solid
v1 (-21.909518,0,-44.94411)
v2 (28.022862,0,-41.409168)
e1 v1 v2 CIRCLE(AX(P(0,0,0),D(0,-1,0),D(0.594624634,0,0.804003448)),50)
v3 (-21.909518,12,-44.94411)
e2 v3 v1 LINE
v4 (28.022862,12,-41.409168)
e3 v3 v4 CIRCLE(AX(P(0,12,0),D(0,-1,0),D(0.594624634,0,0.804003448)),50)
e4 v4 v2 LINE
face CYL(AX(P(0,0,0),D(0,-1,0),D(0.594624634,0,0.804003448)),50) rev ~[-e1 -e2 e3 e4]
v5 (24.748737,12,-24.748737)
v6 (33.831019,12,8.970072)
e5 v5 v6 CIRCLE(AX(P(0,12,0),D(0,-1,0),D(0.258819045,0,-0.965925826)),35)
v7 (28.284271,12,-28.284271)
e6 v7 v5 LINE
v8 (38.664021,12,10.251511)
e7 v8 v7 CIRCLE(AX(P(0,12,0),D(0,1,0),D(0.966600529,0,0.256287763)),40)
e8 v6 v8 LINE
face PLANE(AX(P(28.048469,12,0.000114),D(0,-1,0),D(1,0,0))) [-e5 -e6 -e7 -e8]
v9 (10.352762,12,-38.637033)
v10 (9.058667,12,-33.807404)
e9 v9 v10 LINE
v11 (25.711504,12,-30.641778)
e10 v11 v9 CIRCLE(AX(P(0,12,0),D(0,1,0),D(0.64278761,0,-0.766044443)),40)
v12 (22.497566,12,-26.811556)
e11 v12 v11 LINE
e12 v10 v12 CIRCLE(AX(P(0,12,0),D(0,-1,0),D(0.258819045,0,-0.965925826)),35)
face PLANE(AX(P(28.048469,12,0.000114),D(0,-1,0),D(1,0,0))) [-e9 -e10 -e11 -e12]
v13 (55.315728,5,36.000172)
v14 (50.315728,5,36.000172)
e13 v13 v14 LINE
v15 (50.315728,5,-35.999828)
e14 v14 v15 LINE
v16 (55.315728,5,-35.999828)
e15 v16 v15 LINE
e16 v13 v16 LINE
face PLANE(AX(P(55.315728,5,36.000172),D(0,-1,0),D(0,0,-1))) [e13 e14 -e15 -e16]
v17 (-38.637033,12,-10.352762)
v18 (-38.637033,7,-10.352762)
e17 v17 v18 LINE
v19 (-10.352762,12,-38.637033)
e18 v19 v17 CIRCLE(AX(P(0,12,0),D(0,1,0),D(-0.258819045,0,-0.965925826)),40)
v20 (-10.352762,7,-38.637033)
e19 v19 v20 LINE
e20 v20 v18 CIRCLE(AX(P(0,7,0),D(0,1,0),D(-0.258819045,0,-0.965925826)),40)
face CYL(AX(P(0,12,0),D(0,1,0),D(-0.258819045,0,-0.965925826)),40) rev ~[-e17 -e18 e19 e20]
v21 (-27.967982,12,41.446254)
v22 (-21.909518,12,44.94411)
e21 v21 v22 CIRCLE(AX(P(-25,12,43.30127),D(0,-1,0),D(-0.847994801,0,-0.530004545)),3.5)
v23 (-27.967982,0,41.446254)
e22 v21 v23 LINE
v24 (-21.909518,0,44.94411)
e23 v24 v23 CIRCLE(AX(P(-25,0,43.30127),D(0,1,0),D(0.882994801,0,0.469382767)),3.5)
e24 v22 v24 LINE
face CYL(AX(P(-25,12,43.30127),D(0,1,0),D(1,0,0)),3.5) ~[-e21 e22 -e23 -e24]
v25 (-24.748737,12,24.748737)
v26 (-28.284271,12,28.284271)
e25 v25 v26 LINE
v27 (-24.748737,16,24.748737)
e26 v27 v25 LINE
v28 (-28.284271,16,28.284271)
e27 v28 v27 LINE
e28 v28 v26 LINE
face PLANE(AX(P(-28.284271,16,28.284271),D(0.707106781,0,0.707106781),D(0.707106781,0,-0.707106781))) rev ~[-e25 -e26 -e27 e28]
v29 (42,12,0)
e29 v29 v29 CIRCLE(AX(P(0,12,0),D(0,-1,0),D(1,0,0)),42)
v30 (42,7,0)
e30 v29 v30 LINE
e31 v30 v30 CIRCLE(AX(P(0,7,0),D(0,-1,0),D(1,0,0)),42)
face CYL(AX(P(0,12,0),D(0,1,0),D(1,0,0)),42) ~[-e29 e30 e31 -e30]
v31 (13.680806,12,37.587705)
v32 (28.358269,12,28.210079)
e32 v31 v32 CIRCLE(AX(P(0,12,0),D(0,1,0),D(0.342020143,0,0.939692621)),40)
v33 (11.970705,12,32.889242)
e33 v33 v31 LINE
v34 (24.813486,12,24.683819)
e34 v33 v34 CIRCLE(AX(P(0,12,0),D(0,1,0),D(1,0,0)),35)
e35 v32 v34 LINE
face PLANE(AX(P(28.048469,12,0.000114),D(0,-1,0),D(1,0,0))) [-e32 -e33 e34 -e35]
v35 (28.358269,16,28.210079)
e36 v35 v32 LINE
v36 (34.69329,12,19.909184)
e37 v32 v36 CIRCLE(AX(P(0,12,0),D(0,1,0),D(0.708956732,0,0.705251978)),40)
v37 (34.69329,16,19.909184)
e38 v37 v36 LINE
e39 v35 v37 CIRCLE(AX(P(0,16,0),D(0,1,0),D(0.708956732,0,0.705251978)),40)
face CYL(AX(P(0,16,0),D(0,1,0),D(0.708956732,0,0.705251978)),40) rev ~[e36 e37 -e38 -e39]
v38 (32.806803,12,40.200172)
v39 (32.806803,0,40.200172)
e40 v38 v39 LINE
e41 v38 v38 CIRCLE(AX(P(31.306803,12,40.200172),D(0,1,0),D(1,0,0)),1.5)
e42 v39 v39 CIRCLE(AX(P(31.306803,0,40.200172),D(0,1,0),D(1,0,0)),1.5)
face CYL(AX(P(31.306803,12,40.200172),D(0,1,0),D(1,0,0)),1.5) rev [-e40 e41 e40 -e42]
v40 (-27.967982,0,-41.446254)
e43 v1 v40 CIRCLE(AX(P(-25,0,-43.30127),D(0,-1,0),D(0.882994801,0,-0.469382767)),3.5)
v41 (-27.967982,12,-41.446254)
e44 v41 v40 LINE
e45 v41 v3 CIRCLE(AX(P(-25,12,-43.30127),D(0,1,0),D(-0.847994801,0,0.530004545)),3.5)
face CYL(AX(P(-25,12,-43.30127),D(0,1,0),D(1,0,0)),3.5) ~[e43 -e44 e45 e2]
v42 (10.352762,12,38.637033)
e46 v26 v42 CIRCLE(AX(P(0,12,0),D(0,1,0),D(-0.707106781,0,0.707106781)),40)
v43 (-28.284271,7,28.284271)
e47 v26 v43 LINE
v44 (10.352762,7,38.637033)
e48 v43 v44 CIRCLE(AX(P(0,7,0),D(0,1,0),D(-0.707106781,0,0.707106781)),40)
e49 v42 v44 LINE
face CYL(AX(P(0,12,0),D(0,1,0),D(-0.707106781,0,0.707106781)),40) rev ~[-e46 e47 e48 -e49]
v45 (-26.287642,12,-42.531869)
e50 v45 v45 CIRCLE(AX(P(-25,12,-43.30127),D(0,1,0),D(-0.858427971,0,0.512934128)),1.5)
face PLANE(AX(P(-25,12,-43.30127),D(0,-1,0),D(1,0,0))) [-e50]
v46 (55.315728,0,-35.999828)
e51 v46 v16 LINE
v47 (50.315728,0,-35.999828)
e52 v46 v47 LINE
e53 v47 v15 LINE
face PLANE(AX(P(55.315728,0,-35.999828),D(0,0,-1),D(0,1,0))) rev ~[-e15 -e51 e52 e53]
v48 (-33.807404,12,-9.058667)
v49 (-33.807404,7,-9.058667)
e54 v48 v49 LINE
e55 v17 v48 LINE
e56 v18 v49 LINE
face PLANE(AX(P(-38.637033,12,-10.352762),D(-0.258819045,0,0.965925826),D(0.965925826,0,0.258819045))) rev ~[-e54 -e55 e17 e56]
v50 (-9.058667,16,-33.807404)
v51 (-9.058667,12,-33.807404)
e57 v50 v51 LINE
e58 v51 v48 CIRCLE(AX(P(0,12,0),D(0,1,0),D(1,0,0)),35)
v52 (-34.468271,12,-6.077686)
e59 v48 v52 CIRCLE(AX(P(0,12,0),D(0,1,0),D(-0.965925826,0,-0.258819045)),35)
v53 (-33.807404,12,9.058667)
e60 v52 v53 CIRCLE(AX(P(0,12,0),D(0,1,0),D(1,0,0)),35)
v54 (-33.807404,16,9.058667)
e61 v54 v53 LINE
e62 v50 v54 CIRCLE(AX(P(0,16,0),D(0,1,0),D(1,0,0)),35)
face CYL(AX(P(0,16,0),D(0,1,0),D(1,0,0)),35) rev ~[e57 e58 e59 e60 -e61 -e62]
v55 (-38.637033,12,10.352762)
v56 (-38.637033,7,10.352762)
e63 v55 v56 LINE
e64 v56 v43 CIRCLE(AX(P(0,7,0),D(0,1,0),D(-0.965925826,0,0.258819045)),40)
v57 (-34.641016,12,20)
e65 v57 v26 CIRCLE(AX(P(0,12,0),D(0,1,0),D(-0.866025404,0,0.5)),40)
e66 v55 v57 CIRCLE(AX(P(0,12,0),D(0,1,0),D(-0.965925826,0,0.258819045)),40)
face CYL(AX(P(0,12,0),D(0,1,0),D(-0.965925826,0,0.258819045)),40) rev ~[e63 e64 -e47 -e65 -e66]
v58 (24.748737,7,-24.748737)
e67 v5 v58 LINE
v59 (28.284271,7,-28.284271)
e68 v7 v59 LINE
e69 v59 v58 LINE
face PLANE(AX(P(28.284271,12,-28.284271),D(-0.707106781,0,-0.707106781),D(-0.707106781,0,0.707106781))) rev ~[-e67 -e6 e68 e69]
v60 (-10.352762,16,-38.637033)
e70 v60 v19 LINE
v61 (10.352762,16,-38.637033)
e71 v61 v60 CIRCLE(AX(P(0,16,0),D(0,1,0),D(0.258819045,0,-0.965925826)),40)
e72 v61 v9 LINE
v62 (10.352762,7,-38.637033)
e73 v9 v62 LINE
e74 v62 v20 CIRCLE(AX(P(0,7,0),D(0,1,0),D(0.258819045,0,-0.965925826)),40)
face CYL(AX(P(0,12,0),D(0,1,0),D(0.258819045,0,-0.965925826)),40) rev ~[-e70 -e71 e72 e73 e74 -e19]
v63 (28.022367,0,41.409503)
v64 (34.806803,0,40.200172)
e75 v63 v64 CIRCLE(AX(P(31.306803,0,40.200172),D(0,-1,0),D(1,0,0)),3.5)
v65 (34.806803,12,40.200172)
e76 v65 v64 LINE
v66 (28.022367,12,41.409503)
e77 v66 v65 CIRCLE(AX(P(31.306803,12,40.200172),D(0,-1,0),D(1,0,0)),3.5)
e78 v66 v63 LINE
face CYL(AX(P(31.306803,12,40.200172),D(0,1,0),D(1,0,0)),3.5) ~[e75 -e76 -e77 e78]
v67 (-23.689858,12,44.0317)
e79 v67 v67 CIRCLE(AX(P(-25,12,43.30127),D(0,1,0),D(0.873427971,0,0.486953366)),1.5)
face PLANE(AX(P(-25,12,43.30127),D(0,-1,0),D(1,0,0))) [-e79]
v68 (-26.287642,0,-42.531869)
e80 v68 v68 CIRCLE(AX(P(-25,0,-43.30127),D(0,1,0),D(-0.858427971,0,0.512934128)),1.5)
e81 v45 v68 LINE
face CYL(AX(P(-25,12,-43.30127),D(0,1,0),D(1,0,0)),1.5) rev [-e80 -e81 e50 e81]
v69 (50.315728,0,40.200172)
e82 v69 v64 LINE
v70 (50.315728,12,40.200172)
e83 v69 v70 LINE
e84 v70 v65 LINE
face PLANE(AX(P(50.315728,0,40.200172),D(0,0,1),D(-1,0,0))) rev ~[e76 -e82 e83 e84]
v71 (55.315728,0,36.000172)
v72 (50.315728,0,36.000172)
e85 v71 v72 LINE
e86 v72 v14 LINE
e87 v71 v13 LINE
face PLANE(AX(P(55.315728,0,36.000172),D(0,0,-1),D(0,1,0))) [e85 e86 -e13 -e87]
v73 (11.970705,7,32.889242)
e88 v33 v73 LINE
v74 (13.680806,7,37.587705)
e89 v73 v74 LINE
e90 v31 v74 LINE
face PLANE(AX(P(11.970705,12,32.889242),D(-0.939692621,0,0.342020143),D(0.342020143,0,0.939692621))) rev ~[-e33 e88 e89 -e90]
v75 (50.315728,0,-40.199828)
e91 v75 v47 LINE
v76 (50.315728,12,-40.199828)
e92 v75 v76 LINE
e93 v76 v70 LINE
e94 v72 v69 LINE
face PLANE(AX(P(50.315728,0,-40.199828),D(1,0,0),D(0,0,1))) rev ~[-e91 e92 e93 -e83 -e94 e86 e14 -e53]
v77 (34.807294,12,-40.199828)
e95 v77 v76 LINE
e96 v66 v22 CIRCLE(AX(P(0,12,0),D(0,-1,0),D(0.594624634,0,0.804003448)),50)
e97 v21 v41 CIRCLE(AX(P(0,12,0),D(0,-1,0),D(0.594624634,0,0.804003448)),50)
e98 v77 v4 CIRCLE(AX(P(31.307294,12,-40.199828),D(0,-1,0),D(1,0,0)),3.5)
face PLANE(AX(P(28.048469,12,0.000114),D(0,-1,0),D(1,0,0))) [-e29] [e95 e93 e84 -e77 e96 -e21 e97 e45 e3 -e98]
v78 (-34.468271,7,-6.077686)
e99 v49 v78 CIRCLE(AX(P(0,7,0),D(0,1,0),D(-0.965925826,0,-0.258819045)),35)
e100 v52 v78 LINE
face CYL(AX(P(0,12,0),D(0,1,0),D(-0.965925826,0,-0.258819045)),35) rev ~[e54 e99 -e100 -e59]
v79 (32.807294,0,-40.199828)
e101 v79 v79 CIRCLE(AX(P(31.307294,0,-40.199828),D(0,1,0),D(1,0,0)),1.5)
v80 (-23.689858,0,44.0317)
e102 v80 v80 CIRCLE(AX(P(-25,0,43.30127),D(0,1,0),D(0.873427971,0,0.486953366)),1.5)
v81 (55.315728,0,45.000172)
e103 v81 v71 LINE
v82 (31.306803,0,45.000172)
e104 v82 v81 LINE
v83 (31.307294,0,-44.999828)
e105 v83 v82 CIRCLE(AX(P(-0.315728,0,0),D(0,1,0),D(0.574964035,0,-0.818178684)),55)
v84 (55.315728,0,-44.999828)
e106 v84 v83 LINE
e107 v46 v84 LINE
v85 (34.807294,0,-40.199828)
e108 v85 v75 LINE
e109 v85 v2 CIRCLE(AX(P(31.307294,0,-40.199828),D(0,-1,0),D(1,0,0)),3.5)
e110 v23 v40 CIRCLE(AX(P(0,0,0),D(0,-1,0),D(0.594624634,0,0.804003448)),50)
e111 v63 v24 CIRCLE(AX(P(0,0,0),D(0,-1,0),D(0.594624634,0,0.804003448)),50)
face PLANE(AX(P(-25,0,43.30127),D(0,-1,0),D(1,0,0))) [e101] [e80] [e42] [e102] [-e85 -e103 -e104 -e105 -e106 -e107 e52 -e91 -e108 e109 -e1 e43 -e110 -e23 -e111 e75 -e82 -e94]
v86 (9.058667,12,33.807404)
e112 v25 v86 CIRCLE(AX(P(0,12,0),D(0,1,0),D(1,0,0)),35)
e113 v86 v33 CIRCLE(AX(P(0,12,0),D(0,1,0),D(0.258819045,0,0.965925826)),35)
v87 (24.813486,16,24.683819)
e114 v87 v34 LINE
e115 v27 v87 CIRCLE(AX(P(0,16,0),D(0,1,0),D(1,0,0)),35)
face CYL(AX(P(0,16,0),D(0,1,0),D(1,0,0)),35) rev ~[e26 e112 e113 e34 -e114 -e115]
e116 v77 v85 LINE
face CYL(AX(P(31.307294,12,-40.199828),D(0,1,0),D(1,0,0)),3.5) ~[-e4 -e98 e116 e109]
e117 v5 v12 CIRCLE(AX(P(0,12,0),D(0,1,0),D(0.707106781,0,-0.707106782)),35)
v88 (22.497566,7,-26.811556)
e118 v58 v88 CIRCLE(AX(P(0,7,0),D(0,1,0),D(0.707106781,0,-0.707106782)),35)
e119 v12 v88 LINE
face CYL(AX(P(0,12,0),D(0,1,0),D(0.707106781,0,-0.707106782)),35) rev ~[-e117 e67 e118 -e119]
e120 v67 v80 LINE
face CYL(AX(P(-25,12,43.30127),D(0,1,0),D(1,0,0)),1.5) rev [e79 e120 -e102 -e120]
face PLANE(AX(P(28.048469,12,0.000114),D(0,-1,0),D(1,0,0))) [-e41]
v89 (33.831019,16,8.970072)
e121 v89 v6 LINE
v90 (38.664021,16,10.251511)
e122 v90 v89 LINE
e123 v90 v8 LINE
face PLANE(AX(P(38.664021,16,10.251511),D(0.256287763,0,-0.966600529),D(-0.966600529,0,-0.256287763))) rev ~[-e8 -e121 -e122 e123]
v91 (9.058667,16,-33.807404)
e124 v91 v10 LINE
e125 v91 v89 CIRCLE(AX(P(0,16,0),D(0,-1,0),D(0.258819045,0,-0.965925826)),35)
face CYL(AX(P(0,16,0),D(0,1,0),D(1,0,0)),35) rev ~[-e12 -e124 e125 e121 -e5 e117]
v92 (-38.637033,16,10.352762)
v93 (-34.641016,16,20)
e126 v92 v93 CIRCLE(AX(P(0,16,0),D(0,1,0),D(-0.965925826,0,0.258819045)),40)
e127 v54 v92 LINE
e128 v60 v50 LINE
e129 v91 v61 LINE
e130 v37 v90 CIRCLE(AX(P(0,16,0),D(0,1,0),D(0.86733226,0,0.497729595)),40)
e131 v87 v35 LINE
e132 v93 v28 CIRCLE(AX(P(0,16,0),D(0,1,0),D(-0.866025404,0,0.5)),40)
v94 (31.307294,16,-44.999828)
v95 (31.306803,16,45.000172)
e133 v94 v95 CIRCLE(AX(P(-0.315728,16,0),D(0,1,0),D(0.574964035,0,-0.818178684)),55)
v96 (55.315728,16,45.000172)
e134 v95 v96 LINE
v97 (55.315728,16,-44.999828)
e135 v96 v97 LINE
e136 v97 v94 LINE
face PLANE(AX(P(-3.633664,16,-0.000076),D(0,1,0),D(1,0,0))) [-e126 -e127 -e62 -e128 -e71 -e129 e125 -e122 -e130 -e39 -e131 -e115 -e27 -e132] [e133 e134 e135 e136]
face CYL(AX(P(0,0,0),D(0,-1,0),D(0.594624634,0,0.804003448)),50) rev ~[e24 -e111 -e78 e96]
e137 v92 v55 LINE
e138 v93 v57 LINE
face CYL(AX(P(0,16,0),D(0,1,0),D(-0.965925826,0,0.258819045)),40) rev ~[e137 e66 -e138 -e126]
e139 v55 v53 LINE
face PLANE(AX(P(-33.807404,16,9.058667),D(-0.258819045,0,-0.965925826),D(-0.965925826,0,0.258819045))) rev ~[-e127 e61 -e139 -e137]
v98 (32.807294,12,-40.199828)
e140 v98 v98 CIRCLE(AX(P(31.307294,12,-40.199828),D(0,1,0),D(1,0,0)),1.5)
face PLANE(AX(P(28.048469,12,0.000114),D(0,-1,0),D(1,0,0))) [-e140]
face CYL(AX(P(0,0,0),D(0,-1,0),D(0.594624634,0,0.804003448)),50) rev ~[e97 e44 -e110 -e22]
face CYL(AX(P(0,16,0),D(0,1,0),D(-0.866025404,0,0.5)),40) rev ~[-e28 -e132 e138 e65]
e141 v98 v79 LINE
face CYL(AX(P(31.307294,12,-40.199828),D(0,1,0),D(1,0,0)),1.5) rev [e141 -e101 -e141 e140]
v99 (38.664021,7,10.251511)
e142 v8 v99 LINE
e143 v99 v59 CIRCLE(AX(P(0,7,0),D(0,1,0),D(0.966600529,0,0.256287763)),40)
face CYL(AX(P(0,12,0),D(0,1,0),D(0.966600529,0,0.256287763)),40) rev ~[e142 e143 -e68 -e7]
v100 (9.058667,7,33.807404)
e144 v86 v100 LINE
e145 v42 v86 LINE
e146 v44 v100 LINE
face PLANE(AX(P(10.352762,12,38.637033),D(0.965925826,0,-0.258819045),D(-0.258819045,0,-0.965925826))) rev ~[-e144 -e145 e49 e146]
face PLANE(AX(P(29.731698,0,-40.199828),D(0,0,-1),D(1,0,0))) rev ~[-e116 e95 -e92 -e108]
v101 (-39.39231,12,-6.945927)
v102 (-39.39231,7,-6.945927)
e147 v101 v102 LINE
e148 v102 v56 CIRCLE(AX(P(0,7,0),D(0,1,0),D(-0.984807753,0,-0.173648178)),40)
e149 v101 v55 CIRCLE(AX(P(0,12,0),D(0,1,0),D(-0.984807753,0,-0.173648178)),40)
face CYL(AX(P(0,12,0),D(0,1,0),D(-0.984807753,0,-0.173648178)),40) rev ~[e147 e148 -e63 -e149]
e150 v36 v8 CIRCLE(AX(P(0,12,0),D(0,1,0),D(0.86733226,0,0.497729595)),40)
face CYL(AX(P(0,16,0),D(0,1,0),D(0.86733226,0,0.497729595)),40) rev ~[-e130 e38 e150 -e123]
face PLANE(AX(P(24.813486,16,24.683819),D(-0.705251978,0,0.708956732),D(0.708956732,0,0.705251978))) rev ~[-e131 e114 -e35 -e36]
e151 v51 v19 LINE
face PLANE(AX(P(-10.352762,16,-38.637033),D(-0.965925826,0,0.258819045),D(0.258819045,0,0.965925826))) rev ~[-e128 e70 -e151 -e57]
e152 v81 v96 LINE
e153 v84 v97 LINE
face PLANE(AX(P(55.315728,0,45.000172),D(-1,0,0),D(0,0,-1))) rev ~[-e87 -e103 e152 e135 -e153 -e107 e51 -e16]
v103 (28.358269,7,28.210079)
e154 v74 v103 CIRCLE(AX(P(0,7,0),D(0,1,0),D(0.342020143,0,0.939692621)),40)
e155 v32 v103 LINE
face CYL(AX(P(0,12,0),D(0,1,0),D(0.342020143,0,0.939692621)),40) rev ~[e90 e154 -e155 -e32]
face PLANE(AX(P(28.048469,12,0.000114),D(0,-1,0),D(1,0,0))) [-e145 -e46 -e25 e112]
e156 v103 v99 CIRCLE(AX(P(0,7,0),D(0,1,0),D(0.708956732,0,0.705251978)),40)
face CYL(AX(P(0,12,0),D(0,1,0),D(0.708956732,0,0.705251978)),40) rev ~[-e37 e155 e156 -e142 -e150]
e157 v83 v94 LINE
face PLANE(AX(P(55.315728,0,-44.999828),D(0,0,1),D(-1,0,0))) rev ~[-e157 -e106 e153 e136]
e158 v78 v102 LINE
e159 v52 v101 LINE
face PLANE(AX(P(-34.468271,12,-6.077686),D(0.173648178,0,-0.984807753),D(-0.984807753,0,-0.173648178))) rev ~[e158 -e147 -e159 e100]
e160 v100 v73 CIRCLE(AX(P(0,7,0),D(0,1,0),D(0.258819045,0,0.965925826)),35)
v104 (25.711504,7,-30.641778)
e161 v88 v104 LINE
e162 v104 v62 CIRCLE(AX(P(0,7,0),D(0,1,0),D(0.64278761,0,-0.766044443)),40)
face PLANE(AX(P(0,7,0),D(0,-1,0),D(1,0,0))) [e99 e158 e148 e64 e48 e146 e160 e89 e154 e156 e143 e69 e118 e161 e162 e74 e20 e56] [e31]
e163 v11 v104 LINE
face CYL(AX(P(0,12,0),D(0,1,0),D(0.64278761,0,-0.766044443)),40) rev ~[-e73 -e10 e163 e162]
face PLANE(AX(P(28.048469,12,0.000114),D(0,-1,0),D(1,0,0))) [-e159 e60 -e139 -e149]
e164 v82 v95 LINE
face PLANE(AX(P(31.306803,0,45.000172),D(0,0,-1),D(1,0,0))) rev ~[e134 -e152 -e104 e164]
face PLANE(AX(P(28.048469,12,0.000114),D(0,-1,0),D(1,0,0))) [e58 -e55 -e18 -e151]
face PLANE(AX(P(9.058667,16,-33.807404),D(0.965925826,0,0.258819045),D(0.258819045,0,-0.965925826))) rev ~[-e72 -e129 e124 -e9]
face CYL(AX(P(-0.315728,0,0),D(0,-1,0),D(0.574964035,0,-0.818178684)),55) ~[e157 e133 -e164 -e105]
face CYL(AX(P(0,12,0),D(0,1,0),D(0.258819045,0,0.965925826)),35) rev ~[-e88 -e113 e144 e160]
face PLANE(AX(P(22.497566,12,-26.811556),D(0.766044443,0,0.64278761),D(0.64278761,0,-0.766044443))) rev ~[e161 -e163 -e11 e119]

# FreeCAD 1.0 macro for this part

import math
import FreeCAD as App
import Part
import Sketcher

V = App.Vector
Q = App.Units.Quantity

doc = App.newDocument("Part")
params = doc.addObject("Spreadsheet::Sheet", "Params")
for row, (alias, value) in enumerate([
    ("sketch1_radius", "55 mm"),
    ("sketch1_height", "90 mm"),
    ("pad1_length", "16 mm"),
    ("sketch2_radius", "50 mm"),
    ("sketch2_height", "80.4 mm"),
    ("pocket1_length", "12 mm"),
    ("sketch3_width", "5 mm"),
    ("sketch3_height", "72 mm"),
    ("pocket2_length", "16 mm"),
    ("sketch4_diameter", "70 mm"),
    ("pocket3_length", "16 mm"),
    ("sketch5_radius", "35 mm"),
    ("sketch5_radius2", "40 mm"),
    ("pocket4_length", "10 mm"),
    ("sketch6_diameter", "84 mm"),
    ("sketch6_radius", "40 mm"),
    ("sketch6_radius2", "35 mm"),
    ("pad2_length", "5 mm"),
    ("sketch7_diameter", "7 mm"),
    ("sketch7_diameter2", "3 mm"),
    ("pad3_length", "12 mm"),
    ("sketch8_diameter", "3 mm"),
    ("pocket5_length", "12 mm"),
], start=1):
    params.set(f"A{row}", alias)
    params.set(f"B{row}", "=" + value)
    params.setAlias(f"B{row}", alias)

body = doc.addObject("PartDesign::Body", "Body")

# Sketch on XZ plane
sketch1 = body.newObject("Sketcher::SketchObject", "Sketch")
sketch1.AttachmentSupport = (doc.getObject("XZ_Plane"), [""])
sketch1.MapMode = "FlatFace"
sketch1.addGeometry([
    Part.ArcOfCircle(Part.Circle(V(0, 0, 0), V(0, 0, 1), 55), math.radians(55), math.radians(305)),
    Part.LineSegment(V(31, 45, 0), V(55, 45, 0)),
    Part.LineSegment(V(55, 45, 0), V(55, -45, 0)),
    Part.LineSegment(V(55, -45, 0), V(31, -45, 0)),
], False)
sketch1.addConstraint([
    Sketcher.Constraint("Coincident", 0, 1, 1, 1),
    Sketcher.Constraint("Coincident", 1, 2, 2, 1),
    Sketcher.Constraint("Coincident", 2, 2, 3, 1),
    Sketcher.Constraint("Coincident", 3, 2, 0, 2),
    Sketcher.Constraint("Horizontal", 1),
    Sketcher.Constraint("Vertical", 2),
    Sketcher.Constraint("Horizontal", 3),
    Sketcher.Constraint("PointOnObject", 0, 3, -1),
    Sketcher.Constraint("Radius", 0, Q("55 mm")),
    Sketcher.Constraint("DistanceY", 2, 2, 2, 1, Q("90 mm")),
    Sketcher.Constraint("DistanceX", 1, 1, 1, 2, Q("24.008925 mm")),
    Sketcher.Constraint("DistanceX", 3, 2, 3, 1, Q("24.008434 mm")),
    Sketcher.Constraint("DistanceX", 0, 3, -1, 1, Q("0.315728 mm")),
])
sketch1.setExpression("Constraints[8]", "Params.sketch1_radius")
sketch1.setExpression("Constraints[9]", "Params.sketch1_height")
pad1 = body.newObject("PartDesign::Pad", "Pad")
pad1.Profile = sketch1
pad1.setExpression("Length", "Params.pad1_length")
pad1.Reversed = True

# Sketch on XZ plane
sketch2 = body.newObject("Sketcher::SketchObject", "Sketch001")
sketch2.AttachmentSupport = (doc.getObject("XZ_Plane"), [""])
sketch2.MapMode = "FlatFace"
sketch2.addGeometry([
    Part.ArcOfCircle(Part.Circle(V(0, 0, 0), V(0, 0, 1), 50), math.radians(54), math.radians(306)),
    Part.LineSegment(V(30, -40, 0), V(50, -40, 0)),
    Part.LineSegment(V(50, -40, 0), V(50, 40, 0)),
    Part.LineSegment(V(50, 40, 0), V(30, 40, 0)),
], False)
sketch2.addConstraint([
    Sketcher.Constraint("Coincident", 0, 2, 1, 1),
    Sketcher.Constraint("Coincident", 1, 2, 2, 1),
    Sketcher.Constraint("Coincident", 2, 2, 3, 1),
    Sketcher.Constraint("Coincident", 3, 2, 0, 1),
    Sketcher.Constraint("Horizontal", 1),
    Sketcher.Constraint("Vertical", 2),
    Sketcher.Constraint("Horizontal", 3),
    Sketcher.Constraint("Coincident", 0, 3, -1, 1),
    Sketcher.Constraint("Radius", 0, Q("50 mm")),
    Sketcher.Constraint("DistanceY", 2, 1, 2, 2, Q("80.4 mm")),
    Sketcher.Constraint("DistanceX", 1, 1, 1, 2, Q("20.58403 mm")),
    Sketcher.Constraint("DistanceX", 3, 2, 3, 1, Q("20.584496 mm")),
])
sketch2.setExpression("Constraints[8]", "Params.sketch2_radius")
sketch2.setExpression("Constraints[9]", "Params.sketch2_height")
pocket1 = body.newObject("PartDesign::Pocket", "Pocket")
pocket1.Profile = sketch2
pocket1.setExpression("Length", "Params.pocket1_length")

# Sketch on YZ plane
sketch3 = body.newObject("Sketcher::SketchObject", "Sketch002")
sketch3.AttachmentSupport = (doc.getObject("YZ_Plane"), [""])
sketch3.MapMode = "FlatFace"
sketch3.AttachmentOffset = App.Placement(V(0, 0, 55.315728), App.Rotation())
sketch3.addGeometry([
    Part.LineSegment(V(5, 36, 0), V(0, 36, 0)),
    Part.LineSegment(V(0, 36, 0), V(0, -36, 0)),
    Part.LineSegment(V(0, -36, 0), V(5, -36, 0)),
    Part.LineSegment(V(5, -36, 0), V(5, 36, 0)),
], False)
sketch3.addConstraint([
    Sketcher.Constraint("Coincident", 0, 2, 1, 1),
    Sketcher.Constraint("Coincident", 1, 2, 2, 1),
    Sketcher.Constraint("Coincident", 2, 2, 3, 1),
    Sketcher.Constraint("Coincident", 3, 2, 0, 1),
    Sketcher.Constraint("Horizontal", 0),
    Sketcher.Constraint("Vertical", 1),
    Sketcher.Constraint("Horizontal", 2),
    Sketcher.Constraint("Vertical", 3),
    Sketcher.Constraint("PointOnObject", 0, 2, -2),
    Sketcher.Constraint("DistanceX", 0, 2, 0, 1, Q("5 mm")),
    Sketcher.Constraint("DistanceY", 1, 2, 1, 1, Q("72 mm")),
    Sketcher.Constraint("DistanceY", -1, 1, 0, 2, Q("36.000172 mm")),
])
sketch3.setExpression("Constraints[9]", "Params.sketch3_width")
sketch3.setExpression("Constraints[10]", "Params.sketch3_height")
pocket2 = body.newObject("PartDesign::Pocket", "Pocket001")
pocket2.Profile = sketch3
pocket2.setExpression("Length", "Params.pocket2_length")

# Sketch on XZ plane
sketch4 = body.newObject("Sketcher::SketchObject", "Sketch003")
sketch4.AttachmentSupport = (doc.getObject("XZ_Plane"), [""])
sketch4.MapMode = "FlatFace"
sketch4.AttachmentOffset = App.Placement(V(0, 0, -16), App.Rotation())
sketch4.addGeometry(Part.Circle(V(0, 0, 0), V(0, 0, 1), 35), False)
sketch4.addConstraint([
    Sketcher.Constraint("Coincident", 0, 3, -1, 1),
    Sketcher.Constraint("Diameter", 0, Q("70 mm")),
])
sketch4.setExpression("Constraints[1]", "Params.sketch4_diameter")
pocket3 = body.newObject("PartDesign::Pocket", "Pocket002")
pocket3.Profile = sketch4
pocket3.setExpression("Length", "Params.pocket3_length")
pocket3.Reversed = True

# Sketch on XZ plane
sketch5 = body.newObject("Sketcher::SketchObject", "Sketch004")
sketch5.AttachmentSupport = (doc.getObject("XZ_Plane"), [""])
sketch5.MapMode = "FlatFace"
sketch5.AttachmentOffset = App.Placement(V(0, 0, -16), App.Rotation())
sketch5.addGeometry([
    Part.LineSegment(V(-28.3, 28.3, 0), V(-24.7, 24.7, 0)),  # 0
    Part.ArcOfCircle(Part.Circle(V(0, 0, 0), V(0, 0, 1), 35), math.radians(135), math.radians(150)),  # 1
    Part.ArcOfCircle(Part.Circle(V(0, 0, 0), V(0, 0, 1), 35), math.radians(150), math.radians(165)),  # 2
    Part.LineSegment(V(-33.8, 9.1, 0), V(-38.6, 10.4, 0)),  # 3
    Part.ArcOfCircle(Part.Circle(V(0, 0, 0), V(0, 0, 1), 40), math.radians(150), math.radians(165)),  # 4
    Part.ArcOfCircle(Part.Circle(V(0, 0, 0), V(0, 0, 1), 40), math.radians(135), math.radians(150)),  # 5
    Part.LineSegment(V(-10.4, -38.6, 0), V(-9.1, -33.8, 0)),  # 6
    Part.ArcOfCircle(Part.Circle(V(0, 0, 0), V(0, 0, 1), 35), math.radians(-105), math.radians(-75)),  # 7
    Part.LineSegment(V(9.1, -33.8, 0), V(10.4, -38.6, 0)),  # 8
    Part.ArcOfCircle(Part.Circle(V(0, 0, 0), V(0, 0, 1), 40), math.radians(-105), math.radians(-75)),  # 9
    Part.ArcOfCircle(Part.Circle(V(0, 0, 0), V(0, 0, 1), 35), math.radians(14.85), math.radians(29.85)),  # 10
    Part.ArcOfCircle(Part.Circle(V(0, 0, 0), V(0, 0, 1), 35), math.radians(29.85), math.radians(44.85)),  # 11
    Part.LineSegment(V(24.8, 24.7, 0), V(28.4, 28.2, 0)),  # 12
    Part.ArcOfCircle(Part.Circle(V(0, 0, 0), V(0, 0, 1), 40), math.radians(29.85), math.radians(44.85)),  # 13
    Part.ArcOfCircle(Part.Circle(V(0, 0, 0), V(0, 0, 1), 40), math.radians(14.85), math.radians(29.85)),  # 14
    Part.LineSegment(V(38.7, 10.3, 0), V(33.8, 9, 0)),  # 15
], False)
sketch5.addConstraint([
    Sketcher.Constraint("Coincident", 0, 2, 1, 1),
    Sketcher.Constraint("Tangent", 1, 2, 2, 1),
    Sketcher.Constraint("Coincident", 2, 2, 3, 1),
    Sketcher.Constraint("Coincident", 3, 2, 4, 2),
    Sketcher.Constraint("Tangent", 4, 1, 5, 2),
    Sketcher.Constraint("Coincident", 5, 1, 0, 1),
    Sketcher.Constraint("Coincident", 6, 2, 7, 1),
    Sketcher.Constraint("Coincident", 7, 2, 8, 1),
    Sketcher.Constraint("Coincident", 8, 2, 9, 2),
    Sketcher.Constraint("Coincident", 9, 1, 6, 1),
    Sketcher.Constraint("Tangent", 10, 2, 11, 1),
    Sketcher.Constraint("Coincident", 11, 2, 12, 1),
    Sketcher.Constraint("Coincident", 12, 2, 13, 2),
    Sketcher.Constraint("Tangent", 13, 1, 14, 2),
    Sketcher.Constraint("Coincident", 14, 1, 15, 1),
    Sketcher.Constraint("Coincident", 15, 2, 10, 1),
    Sketcher.Constraint("Coincident", 1, 3, -1, 1),
    Sketcher.Constraint("Coincident", 4, 3, -1, 1),
    Sketcher.Constraint("Coincident", 7, 3, -1, 1),
    Sketcher.Constraint("Coincident", 9, 3, -1, 1),
    Sketcher.Constraint("Coincident", 10, 3, -1, 1),
    Sketcher.Constraint("Coincident", 13, 3, -1, 1),
    Sketcher.Constraint("Equal", 1, 2),
    Sketcher.Constraint("Equal", 4, 5),
    Sketcher.Constraint("Equal", 2, 7),
    Sketcher.Constraint("Equal", 5, 9),
    Sketcher.Constraint("Equal", 7, 10),
    Sketcher.Constraint("Equal", 10, 11),
    Sketcher.Constraint("Equal", 9, 13),
    Sketcher.Constraint("Equal", 13, 14),
    Sketcher.Constraint("Perpendicular", 3, 6),
    Sketcher.Constraint("Horizontal", 6, 2, 7, 2),
    Sketcher.Constraint("Horizontal", 8, 2, 9, 1),
    Sketcher.Constraint("Radius", 1, Q("35 mm")),
    Sketcher.Constraint("Radius", 4, Q("40 mm")),
    Sketcher.Constraint("Angle", 0, Q("-45 deg")),
    Sketcher.Constraint("Angle", 3, Q("165 deg")),
    Sketcher.Constraint("DistanceY", -1, 1, 4, 1, Q("20 mm")),
    Sketcher.Constraint("DistanceY", -1, 1, 1, 2, Q("17.5 mm")),
    Sketcher.Constraint("DistanceY", -1, 1, 3, 2, Q("10.352762 mm")),
    Sketcher.Constraint("DistanceX", 5, 1, -1, 1, Q("28.284271 mm")),
    Sketcher.Constraint("DistanceX", -1, 1, 8, 2, Q("10.352762 mm")),
    Sketcher.Constraint("DistanceX", -1, 1, 10, 2, Q("30.356629 mm")),
    Sketcher.Constraint("DistanceY", -1, 1, 11, 2, Q("24.683819 mm")),
    Sketcher.Constraint("DistanceX", -1, 1, 12, 2, Q("28.358269 mm")),
    Sketcher.Constraint("DistanceX", -1, 1, 13, 1, Q("34.69329 mm")),
    Sketcher.Constraint("DistanceX", -1, 1, 14, 1, Q("38.664021 mm")),
    Sketcher.Constraint("DistanceX", -1, 1, 15, 2, Q("33.831019 mm")),
])
sketch5.setExpression("Constraints[33]", "Params.sketch5_radius")
sketch5.setExpression("Constraints[34]", "Params.sketch5_radius2")
pocket4 = body.newObject("PartDesign::Pocket", "Pocket003")
pocket4.Profile = sketch5
pocket4.setExpression("Length", "Params.pocket4_length")
pocket4.Reversed = True

# Sketch on XZ plane
sketch6 = body.newObject("Sketcher::SketchObject", "Sketch005")
sketch6.AttachmentSupport = (doc.getObject("XZ_Plane"), [""])
sketch6.MapMode = "FlatFace"
sketch6.AttachmentOffset = App.Placement(V(0, 0, -12), App.Rotation())
sketch6.addGeometry([
    Part.Circle(V(0, 0, 0), V(0, 0, 1), 42),  # 0
    Part.ArcOfCircle(Part.Circle(V(0, 0, 0), V(0, 0, 1), 40), math.radians(135), math.radians(165)),  # 1
    Part.ArcOfCircle(Part.Circle(V(0, 0, 0), V(0, 0, 1), 40), math.radians(75), math.radians(135)),  # 2
    Part.LineSegment(V(10.4, 38.6, 0), V(9.1, 33.8, 0)),  # 3
    Part.ArcOfCircle(Part.Circle(V(0, 0, 0), V(0, 0, 1), 35), math.radians(70), math.radians(75)),  # 4
    Part.LineSegment(V(12, 32.9, 0), V(13.7, 37.6, 0)),  # 5
    Part.ArcOfCircle(Part.Circle(V(0, 0, 0), V(0, 0, 1), 40), math.radians(45), math.radians(70)),  # 6
    Part.ArcOfCircle(Part.Circle(V(0, 0, 0), V(0, 0, 1), 40), math.radians(15), math.radians(45)),  # 7
    Part.ArcOfCircle(Part.Circle(V(0, 0, 0), V(0, 0, 1), 40), math.radians(-45), math.radians(15)),  # 8
    Part.LineSegment(V(28.3, -28.3, 0), V(24.7, -24.7, 0)),  # 9
    Part.ArcOfCircle(Part.Circle(V(0, 0, 0), V(0, 0, 1), 35), math.radians(-50), math.radians(-45)),  # 10
    Part.LineSegment(V(22.5, -26.8, 0), V(25.7, -30.6, 0)),  # 11
    Part.ArcOfCircle(Part.Circle(V(0, 0, 0), V(0, 0, 1), 40), math.radians(-75), math.radians(-50)),  # 12
    Part.ArcOfCircle(Part.Circle(V(0, 0, 0), V(0, 0, 1), 40), math.radians(-105), math.radians(-75)),  # 13
    Part.ArcOfCircle(Part.Circle(V(0, 0, 0), V(0, 0, 1), 40), math.radians(-165), math.radians(-105)),  # 14
    Part.LineSegment(V(-38.6, -10.4, 0), V(-33.8, -9.1, 0)),  # 15
    Part.ArcOfCircle(Part.Circle(V(0, 0, 0), V(0, 0, 1), 35), math.radians(-170), math.radians(-165)),  # 16
    Part.LineSegment(V(-34.5, -6.1, 0), V(-39.4, -6.9, 0)),  # 17
    Part.ArcOfCircle(Part.Circle(V(0, 0, 0), V(0, 0, 1), 40), math.radians(165), math.radians(190)),  # 18
], False)
sketch6.addConstraint([
    Sketcher.Constraint("Tangent", 1, 1, 2, 2),
    Sketcher.Constraint("Coincident", 2, 1, 3, 1),
    Sketcher.Constraint("Coincident", 3, 2, 4, 2),
    Sketcher.Constraint("Coincident", 4, 1, 5, 1),
    Sketcher.Constraint("Coincident", 5, 2, 6, 2),
    Sketcher.Constraint("Tangent", 6, 1, 7, 2),
    Sketcher.Constraint("Tangent", 7, 1, 8, 2),
    Sketcher.Constraint("Coincident", 8, 1, 9, 1),
    Sketcher.Constraint("Coincident", 9, 2, 10, 2),
    Sketcher.Constraint("Coincident", 10, 1, 11, 1),
    Sketcher.Constraint("Coincident", 11, 2, 12, 2),
    Sketcher.Constraint("Tangent", 12, 1, 13, 2),
    Sketcher.Constraint("Tangent", 13, 1, 14, 2),
    Sketcher.Constraint("Coincident", 14, 1, 15, 1),
    Sketcher.Constraint("Coincident", 15, 2, 16, 2),
    Sketcher.Constraint("Coincident", 16, 1, 17, 1),
    Sketcher.Constraint("Coincident", 17, 2, 18, 2),
    Sketcher.Constraint("Tangent", 18, 1, 1, 2),
    Sketcher.Constraint("Coincident", 0, 3, -1, 1),
    Sketcher.Constraint("Coincident", 1, 3, -1, 1),
    Sketcher.Constraint("Coincident", 4, 3, -1, 1),
    Sketcher.Constraint("Coincident", 6, 3, -1, 1),
    Sketcher.Constraint("Coincident", 8, 3, -1, 1),
    Sketcher.Constraint("Coincident", 10, 3, -1, 1),
    Sketcher.Constraint("Coincident", 12, 3, -1, 1),
    Sketcher.Constraint("Coincident", 14, 3, -1, 1),
    Sketcher.Constraint("Coincident", 16, 3, -1, 1),
    Sketcher.Constraint("Equal", 1, 2),
    Sketcher.Constraint("Equal", 2, 6),
    Sketcher.Constraint("Equal", 4, 10),
    Sketcher.Constraint("Equal", 8, 12),
    Sketcher.Constraint("Equal", 10, 16),
    Sketcher.Constraint("Equal", 14, 18),
    Sketcher.Constraint("Horizontal", 12, 1, 13, 1),
    Sketcher.Constraint("Vertical", 2, 1, 12, 1),
    Sketcher.Constraint("Vertical", 14, 1, 18, 1),
    Sketcher.Constraint("Diameter", 0, Q("84 mm")),
    Sketcher.Constraint("Radius", 1, Q("40 mm")),
    Sketcher.Constraint("Radius", 4, Q("35 mm")),
    Sketcher.Constraint("Angle", 3, Q("-105 deg")),
    Sketcher.Constraint("Angle", 5, Q("70 deg")),
    Sketcher.Constraint("Angle", 9, Q("135 deg")),
    Sketcher.Constraint("Angle", 11, Q("-50 deg")),
    Sketcher.Constraint("Angle", 15, Q("15 deg")),
    Sketcher.Constraint("Angle", 17, Q("-170 deg")),
    Sketcher.Constraint("DistanceX", 16, 1, 1, 1, Q("6.184 mm")),
    Sketcher.Constraint("DistanceY", 3, 2, 5, 2, Q("3.780301 mm")),
    Sketcher.Constraint("DistanceX", 13, 1, 9, 2, Q("35.101499 mm")),
    Sketcher.Constraint("DistanceY", 17, 2, 1, 1, Q("35.230198 mm")),
    Sketcher.Constraint("DistanceX", -1, 1, 2, 1, Q("10.352762 mm")),
    Sketcher.Constraint("DistanceX", -1, 1, 6, 1, Q("28.358269 mm")),
    Sketcher.Constraint("DistanceX", -1, 1, 7, 1, Q("38.664021 mm")),
    Sketcher.Constraint("DistanceY", 14, 1, -1, 1, Q("10.352762 mm")),
    Sketcher.Constraint("DistanceX", 10, 1, 9, 2, Q("2.251171 mm")),
])
sketch6.setExpression("Constraints[36]", "Params.sketch6_diameter")
sketch6.setExpression("Constraints[37]", "Params.sketch6_radius")
sketch6.setExpression("Constraints[38]", "Params.sketch6_radius2")
pad2 = body.newObject("PartDesign::Pad", "Pad001")
pad2.Profile = sketch6
pad2.setExpression("Length", "Params.pad2_length")

# Sketch on XZ plane
sketch7 = body.newObject("Sketcher::SketchObject", "Sketch006")
sketch7.AttachmentSupport = (doc.getObject("XZ_Plane"), [""])
sketch7.MapMode = "FlatFace"
sketch7.AttachmentOffset = App.Placement(V(0, 0, -12), App.Rotation())
sketch7.addGeometry([
    Part.Circle(V(-25, 43.3, 0), V(0, 0, 1), 3.5),  # 0
    Part.Circle(V(-25, 43.3, 0), V(0, 0, 1), 1.5),  # 1
    Part.Circle(V(-25, -43.3, 0), V(0, 0, 1), 3.5),  # 2
    Part.Circle(V(-25, -43.3, 0), V(0, 0, 1), 1.5),  # 3
    Part.Circle(V(31.3, 40.2, 0), V(0, 0, 1), 3.5),  # 4
    Part.Circle(V(31.3, 40.2, 0), V(0, 0, 1), 1.5),  # 5
    Part.Circle(V(31.3, -40.2, 0), V(0, 0, 1), 3.5),  # 6
    Part.Circle(V(31.3, -40.2, 0), V(0, 0, 1), 1.5),  # 7
], False)
sketch7.addConstraint([
    Sketcher.Constraint("Coincident", 1, 3, 0, 3),
    Sketcher.Constraint("Coincident", 3, 3, 2, 3),
    Sketcher.Constraint("Coincident", 5, 3, 4, 3),
    Sketcher.Constraint("Coincident", 7, 3, 6, 3),
    Sketcher.Constraint("Equal", 0, 2),
    Sketcher.Constraint("Equal", 1, 3),
    Sketcher.Constraint("Equal", 2, 4),
    Sketcher.Constraint("Equal", 3, 5),
    Sketcher.Constraint("Equal", 4, 6),
    Sketcher.Constraint("Equal", 5, 7),
    Sketcher.Constraint("Symmetric", 0, 3, 2, 3, -1),
    Sketcher.Constraint("Diameter", 0, Q("7 mm")),
    Sketcher.Constraint("Diameter", 1, Q("3 mm")),
    Sketcher.Constraint("DistanceX", 0, 3, -1, 1, Q("25 mm")),
    Sketcher.Constraint("DistanceY", 6, 3, 4, 3, Q("80.4 mm")),
    Sketcher.Constraint("DistanceY", -1, 1, 0, 3, Q("43.30127 mm")),
    Sketcher.Constraint("DistanceX", 4, 3, 6, 3, Q("0.000491 mm")),
    Sketcher.Constraint("DistanceX", -1, 1, 4, 3, Q("31.306803 mm")),
    Sketcher.Constraint("DistanceY", -1, 1, 4, 3, Q("40.200172 mm")),
])
sketch7.setExpression("Constraints[11]", "Params.sketch7_diameter")
sketch7.setExpression("Constraints[12]", "Params.sketch7_diameter2")
pad3 = body.newObject("PartDesign::Pad", "Pad002")
pad3.Profile = sketch7
pad3.setExpression("Length", "Params.pad3_length")

# Sketch on XZ plane
sketch8 = body.newObject("Sketcher::SketchObject", "Sketch007")
sketch8.AttachmentSupport = (doc.getObject("XZ_Plane"), [""])
sketch8.MapMode = "FlatFace"
sketch8.AttachmentOffset = App.Placement(V(0, 0, -12), App.Rotation())
sketch8.addGeometry([
    Part.Circle(V(-25, 43.3, 0), V(0, 0, 1), 1.5),
    Part.Circle(V(31.3, 40.2, 0), V(0, 0, 1), 1.5),
    Part.Circle(V(-25, -43.3, 0), V(0, 0, 1), 1.5),
    Part.Circle(V(31.3, -40.2, 0), V(0, 0, 1), 1.5),
], False)
sketch8.addConstraint([
    Sketcher.Constraint("Equal", 0, 1),
    Sketcher.Constraint("Equal", 1, 2),
    Sketcher.Constraint("Equal", 2, 3),
    Sketcher.Constraint("Symmetric", 0, 3, 2, 3, -1),
    Sketcher.Constraint("Diameter", 0, Q("3 mm")),
    Sketcher.Constraint("DistanceX", 0, 3, -1, 1, Q("25 mm")),
    Sketcher.Constraint("DistanceY", 3, 3, 1, 3, Q("80.4 mm")),
    Sketcher.Constraint("DistanceY", -1, 1, 0, 3, Q("43.30127 mm")),
    Sketcher.Constraint("DistanceX", 1, 3, 3, 3, Q("0.000491 mm")),
    Sketcher.Constraint("DistanceX", -1, 1, 1, 3, Q("31.306803 mm")),
    Sketcher.Constraint("DistanceY", -1, 1, 1, 3, Q("40.200172 mm")),
])
sketch8.setExpression("Constraints[4]", "Params.sketch8_diameter")
pocket5 = body.newObject("PartDesign::Pocket", "Pocket004")
pocket5.Profile = sketch8
pocket5.setExpression("Length", "Params.pocket5_length")
pocket5.Reversed = True

doc.recompute()
